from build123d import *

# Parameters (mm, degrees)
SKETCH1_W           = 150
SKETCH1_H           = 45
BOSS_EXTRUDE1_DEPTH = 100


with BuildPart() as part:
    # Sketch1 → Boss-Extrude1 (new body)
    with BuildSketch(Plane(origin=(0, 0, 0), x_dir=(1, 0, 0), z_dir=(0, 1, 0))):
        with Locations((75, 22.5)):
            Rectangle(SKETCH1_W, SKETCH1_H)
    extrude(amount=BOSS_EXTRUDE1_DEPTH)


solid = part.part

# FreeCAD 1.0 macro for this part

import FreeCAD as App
import Part
import Sketcher

V = App.Vector

doc = App.newDocument("Part")
body = doc.addObject("PartDesign::Body", "Body")

# Sketch on XZ plane
sketch1 = body.newObject("Sketcher::SketchObject", "Sketch")
sketch1.AttachmentSupport = (doc.getObject("XZ_Plane"), [""])
sketch1.MapMode = "FlatFace"
sketch1.addGeometry(Part.LineSegment(V(0, -45, 0), V(0, 0, 0)), False)
sketch1.addGeometry(Part.LineSegment(V(0, 0, 0), V(150, 0, 0)), False)
sketch1.addGeometry(Part.LineSegment(V(150, 0, 0), V(150, -45, 0)), False)
sketch1.addGeometry(Part.LineSegment(V(150, -45, 0), V(0, -45, 0)), False)
sketch1.addConstraint(Sketcher.Constraint("Coincident", 0, 2, 1, 1))
sketch1.addConstraint(Sketcher.Constraint("Coincident", 1, 2, 2, 1))
sketch1.addConstraint(Sketcher.Constraint("Coincident", 2, 2, 3, 1))
sketch1.addConstraint(Sketcher.Constraint("Coincident", 3, 2, 0, 1))
sketch1.addConstraint(Sketcher.Constraint("Vertical", 0))
sketch1.addConstraint(Sketcher.Constraint("Horizontal", 1))
sketch1.addConstraint(Sketcher.Constraint("Vertical", 2))
sketch1.addConstraint(Sketcher.Constraint("Horizontal", 3))
sketch1.addConstraint(Sketcher.Constraint("Coincident", 0, 2, -1, 1))
sketch1.addConstraint(Sketcher.Constraint("DistanceX", 1, 1, 1, 2, 150.0))
sketch1.addConstraint(Sketcher.Constraint("DistanceY", 0, 1, 0, 2, 45.0))
pad1 = body.newObject("PartDesign::Pad", "Pad")
pad1.Profile = sketch1
pad1.Length = 100
pad1.Reversed = True

doc.recompute()
